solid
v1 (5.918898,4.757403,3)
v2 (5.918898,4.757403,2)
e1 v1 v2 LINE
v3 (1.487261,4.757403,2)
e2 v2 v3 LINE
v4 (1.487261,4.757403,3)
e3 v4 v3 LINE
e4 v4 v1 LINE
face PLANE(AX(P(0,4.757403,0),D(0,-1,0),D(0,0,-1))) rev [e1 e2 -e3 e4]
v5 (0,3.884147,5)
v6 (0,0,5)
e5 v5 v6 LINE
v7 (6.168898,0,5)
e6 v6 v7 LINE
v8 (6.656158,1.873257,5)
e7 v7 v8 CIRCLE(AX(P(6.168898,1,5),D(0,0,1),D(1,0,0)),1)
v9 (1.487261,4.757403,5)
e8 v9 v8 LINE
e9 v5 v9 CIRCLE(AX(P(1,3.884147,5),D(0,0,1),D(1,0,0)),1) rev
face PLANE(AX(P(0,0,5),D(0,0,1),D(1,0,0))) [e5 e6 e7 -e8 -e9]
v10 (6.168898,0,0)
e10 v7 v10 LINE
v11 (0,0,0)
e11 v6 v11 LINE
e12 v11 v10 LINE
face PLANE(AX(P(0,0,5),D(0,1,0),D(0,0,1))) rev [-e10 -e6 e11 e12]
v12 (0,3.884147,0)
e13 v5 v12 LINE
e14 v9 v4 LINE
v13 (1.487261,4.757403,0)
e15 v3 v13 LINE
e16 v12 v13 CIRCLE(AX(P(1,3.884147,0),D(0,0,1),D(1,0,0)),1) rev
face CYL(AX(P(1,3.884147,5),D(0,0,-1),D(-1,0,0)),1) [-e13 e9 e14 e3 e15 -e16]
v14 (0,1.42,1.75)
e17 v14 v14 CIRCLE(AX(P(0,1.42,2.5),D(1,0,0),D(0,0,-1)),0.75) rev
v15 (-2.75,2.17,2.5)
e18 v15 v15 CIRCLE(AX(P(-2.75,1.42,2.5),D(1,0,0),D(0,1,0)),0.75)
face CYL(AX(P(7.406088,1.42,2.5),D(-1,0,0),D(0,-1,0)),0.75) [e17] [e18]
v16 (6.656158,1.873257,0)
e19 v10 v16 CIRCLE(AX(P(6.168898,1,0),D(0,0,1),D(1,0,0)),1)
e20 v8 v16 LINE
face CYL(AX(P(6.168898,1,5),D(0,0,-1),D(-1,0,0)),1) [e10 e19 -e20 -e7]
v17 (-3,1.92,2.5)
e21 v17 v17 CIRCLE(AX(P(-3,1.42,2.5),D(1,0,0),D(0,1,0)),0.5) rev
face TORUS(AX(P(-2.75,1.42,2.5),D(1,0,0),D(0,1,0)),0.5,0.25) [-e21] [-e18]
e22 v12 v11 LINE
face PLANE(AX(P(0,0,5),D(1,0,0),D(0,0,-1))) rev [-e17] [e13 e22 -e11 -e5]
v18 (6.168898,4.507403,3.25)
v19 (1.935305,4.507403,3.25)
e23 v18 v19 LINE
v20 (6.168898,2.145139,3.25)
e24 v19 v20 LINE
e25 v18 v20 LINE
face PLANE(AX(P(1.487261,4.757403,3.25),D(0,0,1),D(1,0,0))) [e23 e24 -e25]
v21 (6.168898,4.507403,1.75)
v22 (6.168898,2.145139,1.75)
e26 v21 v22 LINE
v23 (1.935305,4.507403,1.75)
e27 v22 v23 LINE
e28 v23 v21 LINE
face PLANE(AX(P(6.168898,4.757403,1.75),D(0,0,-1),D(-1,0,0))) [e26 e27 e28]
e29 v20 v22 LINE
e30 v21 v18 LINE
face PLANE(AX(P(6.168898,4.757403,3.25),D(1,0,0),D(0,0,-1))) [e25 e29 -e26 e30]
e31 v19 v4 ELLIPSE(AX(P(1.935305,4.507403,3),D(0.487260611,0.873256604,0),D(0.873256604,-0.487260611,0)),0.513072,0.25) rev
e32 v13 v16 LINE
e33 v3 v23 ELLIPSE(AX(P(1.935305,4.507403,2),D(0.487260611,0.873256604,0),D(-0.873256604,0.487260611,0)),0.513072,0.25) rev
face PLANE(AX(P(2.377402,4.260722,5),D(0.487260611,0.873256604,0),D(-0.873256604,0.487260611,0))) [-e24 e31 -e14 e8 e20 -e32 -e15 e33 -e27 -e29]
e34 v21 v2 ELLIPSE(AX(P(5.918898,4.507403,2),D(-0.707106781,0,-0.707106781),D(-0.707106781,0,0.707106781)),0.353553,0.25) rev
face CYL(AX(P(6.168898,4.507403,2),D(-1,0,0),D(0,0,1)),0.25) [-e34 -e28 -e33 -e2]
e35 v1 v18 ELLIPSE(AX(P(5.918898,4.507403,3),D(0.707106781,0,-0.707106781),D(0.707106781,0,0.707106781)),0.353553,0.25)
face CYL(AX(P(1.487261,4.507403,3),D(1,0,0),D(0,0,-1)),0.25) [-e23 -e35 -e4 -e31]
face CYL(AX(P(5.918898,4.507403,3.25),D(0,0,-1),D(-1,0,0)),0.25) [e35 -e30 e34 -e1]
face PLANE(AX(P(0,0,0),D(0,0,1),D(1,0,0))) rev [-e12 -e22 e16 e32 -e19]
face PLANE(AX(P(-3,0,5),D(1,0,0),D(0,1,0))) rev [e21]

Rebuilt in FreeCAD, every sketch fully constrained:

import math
import FreeCAD as App
import Part
import Sketcher
Q = App.Units.Quantity


def edges_at(feature, points):
    """Names of the edges that pass closest to the given points."""
    edges = feature.Shape.Edges
    near = lambda p: min(range(len(edges)), key=lambda i: edges[i].distToShape(Part.Vertex(*p))[0])
    return sorted({f"Edge{near(p) + 1}" for p in points})


def add_polygon(sketch, points):
    """Adds a closed chain of lines whose ends are joined by coincident constraints."""
    first, n = sketch.GeometryCount, len(points)
    for a, b in zip(points, points[1:] + points[:1]):
        sketch.addGeometry(Part.LineSegment(App.Vector(*a, 0), App.Vector(*b, 0)), False)
    for i in range(n):
        sketch.addConstraint(Sketcher.Constraint("Coincident", first + i, 2, first + (i + 1) % n, 1))

doc = App.newDocument("Part")
body = doc.addObject("PartDesign::Body", "Body")

# Sketch on XY plane
sketch1 = body.newObject("Sketcher::SketchObject", "Sketch")
sketch1.AttachmentSupport = (doc.getObject("XY_Plane"), [""])
sketch1.MapMode = "FlatFace"
sketch1.addGeometry([
    Part.LineSegment(App.Vector(0, 2.2, 0), App.Vector(-3, 2.2, 0)),  # 0
    Part.LineSegment(App.Vector(-3, 2.2, 0), App.Vector(-3, 0.7, 0)),  # 1
    Part.LineSegment(App.Vector(-3, 0.7, 0), App.Vector(0, 0.7, 0)),  # 2
    Part.LineSegment(App.Vector(0, 0.7, 0), App.Vector(0, 0, 0)),  # 3
    Part.LineSegment(App.Vector(0, 0, 0), App.Vector(6.2, 0, 0)),  # 4
    Part.ArcOfCircle(Part.Circle(App.Vector(6.2, 1, 0), App.Vector(0, 0, 1), 1), math.radians(-90), math.radians(61)),  # 5
    Part.LineSegment(App.Vector(6.7, 1.9, 0), App.Vector(1.5, 4.8, 0)),  # 6
    Part.ArcOfCircle(Part.Circle(App.Vector(1, 3.9, 0), App.Vector(0, 0, 1), 1), math.radians(61), math.radians(180)),  # 7
    Part.LineSegment(App.Vector(0, 3.9, 0), App.Vector(0, 2.2, 0)),  # 8
], False)
sketch1.addConstraint([
    Sketcher.Constraint("Coincident", 0, 2, 1, 1),
    Sketcher.Constraint("Coincident", 1, 2, 2, 1),
    Sketcher.Constraint("Coincident", 2, 2, 3, 1),
    Sketcher.Constraint("Coincident", 3, 2, 4, 1),
    Sketcher.Constraint("Tangent", 4, 2, 5, 1),
    Sketcher.Constraint("Tangent", 5, 2, 6, 1),
    Sketcher.Constraint("Tangent", 6, 2, 7, 1),
    Sketcher.Constraint("Tangent", 7, 2, 8, 1),
    Sketcher.Constraint("Coincident", 8, 2, 0, 1),
    Sketcher.Constraint("Horizontal", 0),
    Sketcher.Constraint("Vertical", 1),
    Sketcher.Constraint("Horizontal", 2),
    Sketcher.Constraint("Vertical", 3),
    Sketcher.Constraint("Horizontal", 4),
    Sketcher.Constraint("Vertical", 8),
    Sketcher.Constraint("Coincident", 3, 2, -1, 1),
    Sketcher.Constraint("Equal", 5, 7),
    Sketcher.Constraint("PointOnObject", 7, 2, -2),
    Sketcher.Constraint("Radius", 5, Q("1 mm")),
    Sketcher.Constraint("DistanceX", 0, 2, 0, 1, Q("3 mm")),
    Sketcher.Constraint("DistanceY", 1, 2, 1, 1, Q("1.5 mm")),
    Sketcher.Constraint("DistanceY", 3, 2, 3, 1, Q("0.67 mm")),
    Sketcher.Constraint("DistanceX", 4, 1, 4, 2, Q("6.168898 mm")),
    Sketcher.Constraint("DistanceY", 8, 2, 8, 1, Q("1.714147 mm")),
])
pad1 = body.newObject("PartDesign::Pad", "Pad")
pad1.Profile = sketch1
pad1.Length = 5

# Sketch on YZ plane
sketch2 = body.newObject("Sketcher::SketchObject", "Sketch001")
sketch2.AttachmentSupport = (doc.getObject("YZ_Plane"), [""])
sketch2.MapMode = "FlatFace"
sketch2.AttachmentOffset = App.Placement(App.Vector(0, 0, -3), App.Rotation())
add_polygon(sketch2, [(2.7, -1.1), (0.2, -1.1), (0.2, 5.9), (2.7, 5.9)])  # lines 0-3
sketch2.addGeometry(Part.Circle(App.Vector(1.4, 2.5, 0), App.Vector(0, 0, 1), 0.8), False)  # 4
sketch2.addConstraint([
    Sketcher.Constraint("Horizontal", 0),
    Sketcher.Constraint("Vertical", 1),
    Sketcher.Constraint("Horizontal", 2),
    Sketcher.Constraint("Vertical", 3),
    Sketcher.Constraint("Diameter", 4, Q("1.5 mm")),
    Sketcher.Constraint("DistanceY", -1, 1, 4, 3, Q("2.5 mm")),
    Sketcher.Constraint("DistanceX", -1, 1, 4, 3, Q("1.42 mm")),
    Sketcher.Constraint("DistanceX", 0, 2, 0, 1, Q("2.551539 mm")),
    Sketcher.Constraint("DistanceY", 1, 1, 1, 2, Q("6.952682 mm")),
    Sketcher.Constraint("DistanceX", -1, 1, 2, 2, Q("2.743592 mm")),
    Sketcher.Constraint("DistanceY", 0, 2, -1, 1, Q("1.075055 mm")),
])
pocket1 = body.newObject("PartDesign::Pocket", "Pocket")
pocket1.Profile = sketch2
pocket1.Length = 3
pocket1.Reversed = True

# Sketch on XZ plane
sketch3 = body.newObject("Sketcher::SketchObject", "Sketch002")
sketch3.AttachmentSupport = (doc.getObject("XZ_Plane"), [""])
sketch3.MapMode = "FlatFace"
add_polygon(sketch3, [(1.5, 3.2), (1.5, 1.8), (6.2, 1.8), (6.2, 3.2)])  # lines 0-3
sketch3.addConstraint([
    Sketcher.Constraint("Vertical", 0),
    Sketcher.Constraint("Horizontal", 1),
    Sketcher.Constraint("Vertical", 2),
    Sketcher.Constraint("Horizontal", 3),
    Sketcher.Constraint("DistanceY", 0, 2, 0, 1, Q("1.5 mm")),
    Sketcher.Constraint("DistanceY", -1, 1, 0, 2, Q("1.75 mm")),
    Sketcher.Constraint("DistanceX", 1, 1, 1, 2, Q("4.681637 mm")),
    Sketcher.Constraint("DistanceX", -1, 1, 0, 2, Q("1.487261 mm")),
])
pad2 = body.newObject("PartDesign::Pad", "Pad001")
pad2.Profile = sketch3
pad2.Length = 4.757403
pad2.Reversed = True
doc.recompute()

fillet = body.newObject("PartDesign::Fillet", "Fillet")
fillet.Base = (pad2, edges_at(pad2, [(-3, 1.42, 1.75)]))
fillet.Radius = 0.25
doc.recompute()

fillet2 = body.newObject("PartDesign::Fillet", "Fillet001")
fillet2.Base = (fillet, edges_at(fillet, [(3.828, 4.757, 1.75), (3.828, 4.757, 3.25), (6.169, 4.757, 2.5)]))
fillet2.Radius = 0.25

doc.recompute()
